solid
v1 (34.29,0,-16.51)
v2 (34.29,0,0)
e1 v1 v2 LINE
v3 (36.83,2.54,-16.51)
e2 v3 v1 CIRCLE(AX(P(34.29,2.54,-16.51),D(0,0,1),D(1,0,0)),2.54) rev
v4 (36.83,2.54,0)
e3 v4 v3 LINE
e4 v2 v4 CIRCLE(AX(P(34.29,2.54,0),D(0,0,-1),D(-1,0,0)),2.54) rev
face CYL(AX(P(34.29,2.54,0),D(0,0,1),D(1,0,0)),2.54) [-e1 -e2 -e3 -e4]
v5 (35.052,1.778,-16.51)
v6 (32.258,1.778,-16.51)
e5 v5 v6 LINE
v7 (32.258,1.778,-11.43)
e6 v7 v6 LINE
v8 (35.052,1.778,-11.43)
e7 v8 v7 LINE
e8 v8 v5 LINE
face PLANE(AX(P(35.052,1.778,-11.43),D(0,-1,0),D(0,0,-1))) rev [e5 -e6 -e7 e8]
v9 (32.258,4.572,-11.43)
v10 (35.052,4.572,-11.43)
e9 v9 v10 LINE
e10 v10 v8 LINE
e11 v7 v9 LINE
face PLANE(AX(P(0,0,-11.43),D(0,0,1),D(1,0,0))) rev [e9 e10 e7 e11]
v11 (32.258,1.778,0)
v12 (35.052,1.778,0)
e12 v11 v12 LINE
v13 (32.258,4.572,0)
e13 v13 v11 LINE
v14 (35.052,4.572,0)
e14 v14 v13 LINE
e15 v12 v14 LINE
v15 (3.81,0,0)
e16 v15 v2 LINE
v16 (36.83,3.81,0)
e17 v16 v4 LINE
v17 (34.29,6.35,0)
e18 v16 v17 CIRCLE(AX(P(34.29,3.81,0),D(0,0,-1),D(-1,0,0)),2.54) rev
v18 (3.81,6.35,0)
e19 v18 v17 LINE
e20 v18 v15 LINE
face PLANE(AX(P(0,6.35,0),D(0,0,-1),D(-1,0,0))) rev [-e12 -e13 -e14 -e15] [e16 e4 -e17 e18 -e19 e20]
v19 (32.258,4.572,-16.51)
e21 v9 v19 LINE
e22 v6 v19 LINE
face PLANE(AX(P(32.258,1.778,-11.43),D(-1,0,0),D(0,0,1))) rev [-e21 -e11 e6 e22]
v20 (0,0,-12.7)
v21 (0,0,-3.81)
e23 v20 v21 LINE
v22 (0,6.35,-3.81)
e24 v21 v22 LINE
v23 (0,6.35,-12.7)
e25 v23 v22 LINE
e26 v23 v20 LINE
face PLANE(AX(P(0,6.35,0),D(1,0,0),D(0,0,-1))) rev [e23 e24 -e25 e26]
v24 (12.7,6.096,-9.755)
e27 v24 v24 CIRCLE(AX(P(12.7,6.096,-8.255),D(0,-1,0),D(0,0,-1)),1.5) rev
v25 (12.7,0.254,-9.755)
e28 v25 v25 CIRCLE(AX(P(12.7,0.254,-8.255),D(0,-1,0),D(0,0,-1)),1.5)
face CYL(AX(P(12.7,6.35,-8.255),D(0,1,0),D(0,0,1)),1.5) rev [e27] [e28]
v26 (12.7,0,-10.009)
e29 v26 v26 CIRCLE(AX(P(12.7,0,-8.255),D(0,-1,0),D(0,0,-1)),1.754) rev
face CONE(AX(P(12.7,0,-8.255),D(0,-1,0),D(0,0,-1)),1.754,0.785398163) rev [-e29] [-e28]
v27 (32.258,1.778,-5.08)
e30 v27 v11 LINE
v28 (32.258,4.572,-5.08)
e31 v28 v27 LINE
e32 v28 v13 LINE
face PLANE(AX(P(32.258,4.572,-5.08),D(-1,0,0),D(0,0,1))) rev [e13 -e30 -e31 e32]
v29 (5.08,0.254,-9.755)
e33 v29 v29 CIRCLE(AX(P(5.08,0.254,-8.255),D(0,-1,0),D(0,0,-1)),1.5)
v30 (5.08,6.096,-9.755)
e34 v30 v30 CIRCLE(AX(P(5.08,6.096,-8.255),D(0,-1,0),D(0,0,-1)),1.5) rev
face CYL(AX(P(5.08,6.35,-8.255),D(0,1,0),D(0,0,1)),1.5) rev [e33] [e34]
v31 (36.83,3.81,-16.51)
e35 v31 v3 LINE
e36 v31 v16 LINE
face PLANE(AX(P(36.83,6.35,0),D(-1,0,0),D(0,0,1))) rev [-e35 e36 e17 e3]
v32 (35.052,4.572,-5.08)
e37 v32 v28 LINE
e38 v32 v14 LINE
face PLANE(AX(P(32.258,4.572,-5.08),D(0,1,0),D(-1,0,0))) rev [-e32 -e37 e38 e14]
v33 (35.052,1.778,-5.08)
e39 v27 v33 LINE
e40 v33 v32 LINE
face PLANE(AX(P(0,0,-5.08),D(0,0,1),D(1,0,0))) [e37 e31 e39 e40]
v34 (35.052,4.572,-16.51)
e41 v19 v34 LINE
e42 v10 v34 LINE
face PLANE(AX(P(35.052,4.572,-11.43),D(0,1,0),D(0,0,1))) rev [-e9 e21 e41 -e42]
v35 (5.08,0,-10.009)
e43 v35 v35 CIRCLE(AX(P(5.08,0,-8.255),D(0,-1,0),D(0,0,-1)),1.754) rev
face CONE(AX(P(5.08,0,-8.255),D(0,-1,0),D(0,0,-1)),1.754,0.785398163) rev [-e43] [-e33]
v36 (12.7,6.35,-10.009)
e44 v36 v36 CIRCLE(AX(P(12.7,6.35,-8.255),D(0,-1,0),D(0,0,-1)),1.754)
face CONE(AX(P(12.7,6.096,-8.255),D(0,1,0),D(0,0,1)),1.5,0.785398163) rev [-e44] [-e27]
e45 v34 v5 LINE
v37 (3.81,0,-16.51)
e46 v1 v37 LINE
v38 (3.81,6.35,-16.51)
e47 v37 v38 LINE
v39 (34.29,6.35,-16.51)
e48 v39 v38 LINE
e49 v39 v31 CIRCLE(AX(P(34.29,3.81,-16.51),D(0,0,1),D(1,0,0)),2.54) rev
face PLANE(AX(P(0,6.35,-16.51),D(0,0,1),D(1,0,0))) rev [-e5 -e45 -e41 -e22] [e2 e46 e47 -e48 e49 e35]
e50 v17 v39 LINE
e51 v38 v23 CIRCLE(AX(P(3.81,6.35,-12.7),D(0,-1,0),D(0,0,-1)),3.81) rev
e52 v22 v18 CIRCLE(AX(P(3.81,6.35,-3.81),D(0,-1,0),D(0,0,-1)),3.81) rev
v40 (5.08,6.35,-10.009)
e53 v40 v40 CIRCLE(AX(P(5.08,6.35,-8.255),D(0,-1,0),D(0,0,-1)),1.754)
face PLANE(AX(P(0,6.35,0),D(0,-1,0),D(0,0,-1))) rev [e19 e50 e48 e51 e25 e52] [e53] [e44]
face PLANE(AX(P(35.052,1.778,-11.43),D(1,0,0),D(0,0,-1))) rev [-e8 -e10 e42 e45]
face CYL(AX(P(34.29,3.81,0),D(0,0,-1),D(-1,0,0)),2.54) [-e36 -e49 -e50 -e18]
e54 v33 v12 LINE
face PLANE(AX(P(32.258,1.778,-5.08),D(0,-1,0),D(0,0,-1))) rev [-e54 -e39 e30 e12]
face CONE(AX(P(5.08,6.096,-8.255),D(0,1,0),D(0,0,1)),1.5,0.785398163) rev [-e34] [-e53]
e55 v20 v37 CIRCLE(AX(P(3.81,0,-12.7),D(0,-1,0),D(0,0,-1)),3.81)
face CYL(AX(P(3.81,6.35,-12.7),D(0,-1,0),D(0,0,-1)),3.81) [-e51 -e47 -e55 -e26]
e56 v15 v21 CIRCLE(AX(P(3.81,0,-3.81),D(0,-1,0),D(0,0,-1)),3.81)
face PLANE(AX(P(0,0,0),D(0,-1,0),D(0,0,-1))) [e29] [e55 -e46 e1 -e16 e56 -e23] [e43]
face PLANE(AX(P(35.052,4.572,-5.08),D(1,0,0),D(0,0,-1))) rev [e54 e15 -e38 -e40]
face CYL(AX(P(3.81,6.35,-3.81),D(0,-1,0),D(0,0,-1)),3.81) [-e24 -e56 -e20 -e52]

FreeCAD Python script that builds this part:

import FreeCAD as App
import Part
import Sketcher
from FreeCAD import Vector
Q = App.Units.Quantity


def edges_at(feature, points):
    """Names of the edges that pass closest to the given points."""
    edges = feature.Shape.Edges
    near = lambda p: min(range(len(edges)), key=lambda i: edges[i].distToShape(Part.Vertex(*p))[0])
    return sorted({f"Edge{near(p) + 1}" for p in points})

doc = App.newDocument("Part")
body = doc.addObject("PartDesign::Body", "Body")

# Sketch on XZ plane
sketch1 = body.newObject("Sketcher::SketchObject", "Sketch")
sketch1.AttachmentSupport = (doc.getObject("XZ_Plane"), [""])
sketch1.MapMode = "FlatFace"
sketch1.addGeometry([
    Part.LineSegment(Vector(0, -17, 0), Vector(0, 0, 0)),
    Part.LineSegment(Vector(0, 0, 0), Vector(37, 0, 0)),
    Part.LineSegment(Vector(37, 0, 0), Vector(37, -17, 0)),
    Part.LineSegment(Vector(37, -17, 0), Vector(0, -17, 0)),
], False)
sketch1.addConstraint([
    Sketcher.Constraint("Coincident", 0, 2, 1, 1),
    Sketcher.Constraint("Coincident", 1, 2, 2, 1),
    Sketcher.Constraint("Coincident", 2, 2, 3, 1),
    Sketcher.Constraint("Coincident", 3, 2, 0, 1),
    Sketcher.Constraint("Vertical", 0),
    Sketcher.Constraint("Horizontal", 1),
    Sketcher.Constraint("Vertical", 2),
    Sketcher.Constraint("Horizontal", 3),
    Sketcher.Constraint("Coincident", 0, 2, -1, 1),
    Sketcher.Constraint("DistanceX", 1, 1, 1, 2, Q("1.45 in")),
    Sketcher.Constraint("DistanceY", 0, 1, 0, 2, Q("0.65 in")),
])
pad1 = body.newObject("PartDesign::Pad", "Pad")
pad1.Profile = sketch1
pad1.Length = Q("0.25 in")
pad1.Reversed = True

# Sketch on XZ plane
sketch2 = body.newObject("Sketcher::SketchObject", "Sketch001")
sketch2.AttachmentSupport = (doc.getObject("XZ_Plane"), [""])
sketch2.MapMode = "FlatFace"
sketch2.AttachmentOffset = App.Placement(Vector(0, 0, -0.25 * 25.4), App.Rotation())
sketch2.addGeometry([
    Part.Circle(Vector(5.1, -8.3, 0), Vector(0, 0, 1), 1.5),
    Part.Circle(Vector(12.7, -8.3, 0), Vector(0, 0, 1), 1.5),
], False)
sketch2.addConstraint([
    Sketcher.Constraint("Equal", 0, 1),
    Sketcher.Constraint("Horizontal", 0, 3, 1, 3),
    Sketcher.Constraint("DistanceX", -1, 1, 0, 3, Q("0.2 in")),
    Sketcher.Constraint("DistanceX", -1, 1, 1, 3, Q("0.5 in")),
    Sketcher.Constraint("Diameter", 0, 3.0),
    Sketcher.Constraint("DistanceY", 0, 3, -1, 1, Q("0.325 in")),
])
doc.recompute()
hole = body.newObject("PartDesign::Hole", "Hole")
hole.Profile = sketch2
hole.ThreadType = "None"
hole.Diameter = 3
hole.DepthType = "ThroughAll"
hole.Reversed = True
doc.recompute()

chamfer = body.newObject("PartDesign::Chamfer", "Chamfer")
chamfer.Base = (hole, edges_at(hole, [
    (14.2, 6.35, -8.255),
    (14.2, 0, -8.255),
    (6.58, 6.35, -8.255),
    (6.58, 0, -8.255),
]))
chamfer.Size = Q("0.01 in")
doc.recompute()

fillet = body.newObject("PartDesign::Fillet", "Fillet")
fillet.Base = (chamfer, edges_at(chamfer, [(0, 3.175, -16.51), (0, 3.175, 0)]))
fillet.Radius = Q("0.15 in")

# Sketch on XY plane
sketch3 = body.newObject("Sketcher::SketchObject", "Sketch002")
sketch3.AttachmentSupport = (doc.getObject("XY_Plane"), [""])
sketch3.MapMode = "FlatFace"
sketch3.addGeometry([
    Part.LineSegment(Vector(32.3, 4.6, 0), Vector(32.3, 1.8, 0)),
    Part.LineSegment(Vector(32.3, 1.8, 0), Vector(35.1, 1.8, 0)),
    Part.LineSegment(Vector(35.1, 1.8, 0), Vector(35.1, 4.6, 0)),
    Part.LineSegment(Vector(35.1, 4.6, 0), Vector(32.3, 4.6, 0)),
], False)
sketch3.addConstraint([
    Sketcher.Constraint("Coincident", 0, 2, 1, 1),
    Sketcher.Constraint("Coincident", 1, 2, 2, 1),
    Sketcher.Constraint("Coincident", 2, 2, 3, 1),
    Sketcher.Constraint("Coincident", 3, 2, 0, 1),
    Sketcher.Constraint("Vertical", 0),
    Sketcher.Constraint("Horizontal", 1),
    Sketcher.Constraint("Vertical", 2),
    Sketcher.Constraint("Horizontal", 3),
    Sketcher.Constraint("Equal", 3, 0),
    Sketcher.Constraint("DistanceX", 1, 1, 1, 2, Q("0.11 in")),
    Sketcher.Constraint("DistanceX", -1, 1, 0, 2, Q("1.27 in")),
    Sketcher.Constraint("DistanceY", -1, 1, 0, 2, Q("0.07 in")),
])
pocket1 = body.newObject("PartDesign::Pocket", "Pocket")
pocket1.Profile = sketch3
pocket1.Length = Q("0.2 in")

# Sketch on XY plane
sketch4 = body.newObject("Sketcher::SketchObject", "Sketch003")
sketch4.AttachmentSupport = (doc.getObject("XY_Plane"), [""])
sketch4.MapMode = "FlatFace"
sketch4.AttachmentOffset = App.Placement(Vector(0, 0, -0.65 * 25.4), App.Rotation())
sketch4.addGeometry([
    Part.LineSegment(Vector(35.1, 4.6, 0), Vector(35.1, 1.8, 0)),
    Part.LineSegment(Vector(35.1, 1.8, 0), Vector(32.3, 1.8, 0)),
    Part.LineSegment(Vector(32.3, 1.8, 0), Vector(32.3, 4.6, 0)),
    Part.LineSegment(Vector(32.3, 4.6, 0), Vector(35.1, 4.6, 0)),
], False)
sketch4.addConstraint([
    Sketcher.Constraint("Coincident", 0, 2, 1, 1),
    Sketcher.Constraint("Coincident", 1, 2, 2, 1),
    Sketcher.Constraint("Coincident", 2, 2, 3, 1),
    Sketcher.Constraint("Coincident", 3, 2, 0, 1),
    Sketcher.Constraint("Vertical", 0),
    Sketcher.Constraint("Horizontal", 1),
    Sketcher.Constraint("Vertical", 2),
    Sketcher.Constraint("Horizontal", 3),
    Sketcher.Constraint("Equal", 3, 0),
    Sketcher.Constraint("DistanceX", 1, 2, 1, 1, Q("0.11 in")),
    Sketcher.Constraint("DistanceX", -1, 1, 0, 2, Q("1.38 in")),
    Sketcher.Constraint("DistanceY", -1, 1, 0, 2, Q("0.07 in")),
])
pocket2 = body.newObject("PartDesign::Pocket", "Pocket001")
pocket2.Profile = sketch4
pocket2.Length = Q("0.2 in")
pocket2.Reversed = True
doc.recompute()

fillet2 = body.newObject("PartDesign::Fillet", "Fillet001")
fillet2.Base = (pocket2, edges_at(pocket2, [(36.83, 6.35, -8.255), (36.83, 0, -8.255)]))
fillet2.Radius = Q("0.1 in")

doc.recompute()
